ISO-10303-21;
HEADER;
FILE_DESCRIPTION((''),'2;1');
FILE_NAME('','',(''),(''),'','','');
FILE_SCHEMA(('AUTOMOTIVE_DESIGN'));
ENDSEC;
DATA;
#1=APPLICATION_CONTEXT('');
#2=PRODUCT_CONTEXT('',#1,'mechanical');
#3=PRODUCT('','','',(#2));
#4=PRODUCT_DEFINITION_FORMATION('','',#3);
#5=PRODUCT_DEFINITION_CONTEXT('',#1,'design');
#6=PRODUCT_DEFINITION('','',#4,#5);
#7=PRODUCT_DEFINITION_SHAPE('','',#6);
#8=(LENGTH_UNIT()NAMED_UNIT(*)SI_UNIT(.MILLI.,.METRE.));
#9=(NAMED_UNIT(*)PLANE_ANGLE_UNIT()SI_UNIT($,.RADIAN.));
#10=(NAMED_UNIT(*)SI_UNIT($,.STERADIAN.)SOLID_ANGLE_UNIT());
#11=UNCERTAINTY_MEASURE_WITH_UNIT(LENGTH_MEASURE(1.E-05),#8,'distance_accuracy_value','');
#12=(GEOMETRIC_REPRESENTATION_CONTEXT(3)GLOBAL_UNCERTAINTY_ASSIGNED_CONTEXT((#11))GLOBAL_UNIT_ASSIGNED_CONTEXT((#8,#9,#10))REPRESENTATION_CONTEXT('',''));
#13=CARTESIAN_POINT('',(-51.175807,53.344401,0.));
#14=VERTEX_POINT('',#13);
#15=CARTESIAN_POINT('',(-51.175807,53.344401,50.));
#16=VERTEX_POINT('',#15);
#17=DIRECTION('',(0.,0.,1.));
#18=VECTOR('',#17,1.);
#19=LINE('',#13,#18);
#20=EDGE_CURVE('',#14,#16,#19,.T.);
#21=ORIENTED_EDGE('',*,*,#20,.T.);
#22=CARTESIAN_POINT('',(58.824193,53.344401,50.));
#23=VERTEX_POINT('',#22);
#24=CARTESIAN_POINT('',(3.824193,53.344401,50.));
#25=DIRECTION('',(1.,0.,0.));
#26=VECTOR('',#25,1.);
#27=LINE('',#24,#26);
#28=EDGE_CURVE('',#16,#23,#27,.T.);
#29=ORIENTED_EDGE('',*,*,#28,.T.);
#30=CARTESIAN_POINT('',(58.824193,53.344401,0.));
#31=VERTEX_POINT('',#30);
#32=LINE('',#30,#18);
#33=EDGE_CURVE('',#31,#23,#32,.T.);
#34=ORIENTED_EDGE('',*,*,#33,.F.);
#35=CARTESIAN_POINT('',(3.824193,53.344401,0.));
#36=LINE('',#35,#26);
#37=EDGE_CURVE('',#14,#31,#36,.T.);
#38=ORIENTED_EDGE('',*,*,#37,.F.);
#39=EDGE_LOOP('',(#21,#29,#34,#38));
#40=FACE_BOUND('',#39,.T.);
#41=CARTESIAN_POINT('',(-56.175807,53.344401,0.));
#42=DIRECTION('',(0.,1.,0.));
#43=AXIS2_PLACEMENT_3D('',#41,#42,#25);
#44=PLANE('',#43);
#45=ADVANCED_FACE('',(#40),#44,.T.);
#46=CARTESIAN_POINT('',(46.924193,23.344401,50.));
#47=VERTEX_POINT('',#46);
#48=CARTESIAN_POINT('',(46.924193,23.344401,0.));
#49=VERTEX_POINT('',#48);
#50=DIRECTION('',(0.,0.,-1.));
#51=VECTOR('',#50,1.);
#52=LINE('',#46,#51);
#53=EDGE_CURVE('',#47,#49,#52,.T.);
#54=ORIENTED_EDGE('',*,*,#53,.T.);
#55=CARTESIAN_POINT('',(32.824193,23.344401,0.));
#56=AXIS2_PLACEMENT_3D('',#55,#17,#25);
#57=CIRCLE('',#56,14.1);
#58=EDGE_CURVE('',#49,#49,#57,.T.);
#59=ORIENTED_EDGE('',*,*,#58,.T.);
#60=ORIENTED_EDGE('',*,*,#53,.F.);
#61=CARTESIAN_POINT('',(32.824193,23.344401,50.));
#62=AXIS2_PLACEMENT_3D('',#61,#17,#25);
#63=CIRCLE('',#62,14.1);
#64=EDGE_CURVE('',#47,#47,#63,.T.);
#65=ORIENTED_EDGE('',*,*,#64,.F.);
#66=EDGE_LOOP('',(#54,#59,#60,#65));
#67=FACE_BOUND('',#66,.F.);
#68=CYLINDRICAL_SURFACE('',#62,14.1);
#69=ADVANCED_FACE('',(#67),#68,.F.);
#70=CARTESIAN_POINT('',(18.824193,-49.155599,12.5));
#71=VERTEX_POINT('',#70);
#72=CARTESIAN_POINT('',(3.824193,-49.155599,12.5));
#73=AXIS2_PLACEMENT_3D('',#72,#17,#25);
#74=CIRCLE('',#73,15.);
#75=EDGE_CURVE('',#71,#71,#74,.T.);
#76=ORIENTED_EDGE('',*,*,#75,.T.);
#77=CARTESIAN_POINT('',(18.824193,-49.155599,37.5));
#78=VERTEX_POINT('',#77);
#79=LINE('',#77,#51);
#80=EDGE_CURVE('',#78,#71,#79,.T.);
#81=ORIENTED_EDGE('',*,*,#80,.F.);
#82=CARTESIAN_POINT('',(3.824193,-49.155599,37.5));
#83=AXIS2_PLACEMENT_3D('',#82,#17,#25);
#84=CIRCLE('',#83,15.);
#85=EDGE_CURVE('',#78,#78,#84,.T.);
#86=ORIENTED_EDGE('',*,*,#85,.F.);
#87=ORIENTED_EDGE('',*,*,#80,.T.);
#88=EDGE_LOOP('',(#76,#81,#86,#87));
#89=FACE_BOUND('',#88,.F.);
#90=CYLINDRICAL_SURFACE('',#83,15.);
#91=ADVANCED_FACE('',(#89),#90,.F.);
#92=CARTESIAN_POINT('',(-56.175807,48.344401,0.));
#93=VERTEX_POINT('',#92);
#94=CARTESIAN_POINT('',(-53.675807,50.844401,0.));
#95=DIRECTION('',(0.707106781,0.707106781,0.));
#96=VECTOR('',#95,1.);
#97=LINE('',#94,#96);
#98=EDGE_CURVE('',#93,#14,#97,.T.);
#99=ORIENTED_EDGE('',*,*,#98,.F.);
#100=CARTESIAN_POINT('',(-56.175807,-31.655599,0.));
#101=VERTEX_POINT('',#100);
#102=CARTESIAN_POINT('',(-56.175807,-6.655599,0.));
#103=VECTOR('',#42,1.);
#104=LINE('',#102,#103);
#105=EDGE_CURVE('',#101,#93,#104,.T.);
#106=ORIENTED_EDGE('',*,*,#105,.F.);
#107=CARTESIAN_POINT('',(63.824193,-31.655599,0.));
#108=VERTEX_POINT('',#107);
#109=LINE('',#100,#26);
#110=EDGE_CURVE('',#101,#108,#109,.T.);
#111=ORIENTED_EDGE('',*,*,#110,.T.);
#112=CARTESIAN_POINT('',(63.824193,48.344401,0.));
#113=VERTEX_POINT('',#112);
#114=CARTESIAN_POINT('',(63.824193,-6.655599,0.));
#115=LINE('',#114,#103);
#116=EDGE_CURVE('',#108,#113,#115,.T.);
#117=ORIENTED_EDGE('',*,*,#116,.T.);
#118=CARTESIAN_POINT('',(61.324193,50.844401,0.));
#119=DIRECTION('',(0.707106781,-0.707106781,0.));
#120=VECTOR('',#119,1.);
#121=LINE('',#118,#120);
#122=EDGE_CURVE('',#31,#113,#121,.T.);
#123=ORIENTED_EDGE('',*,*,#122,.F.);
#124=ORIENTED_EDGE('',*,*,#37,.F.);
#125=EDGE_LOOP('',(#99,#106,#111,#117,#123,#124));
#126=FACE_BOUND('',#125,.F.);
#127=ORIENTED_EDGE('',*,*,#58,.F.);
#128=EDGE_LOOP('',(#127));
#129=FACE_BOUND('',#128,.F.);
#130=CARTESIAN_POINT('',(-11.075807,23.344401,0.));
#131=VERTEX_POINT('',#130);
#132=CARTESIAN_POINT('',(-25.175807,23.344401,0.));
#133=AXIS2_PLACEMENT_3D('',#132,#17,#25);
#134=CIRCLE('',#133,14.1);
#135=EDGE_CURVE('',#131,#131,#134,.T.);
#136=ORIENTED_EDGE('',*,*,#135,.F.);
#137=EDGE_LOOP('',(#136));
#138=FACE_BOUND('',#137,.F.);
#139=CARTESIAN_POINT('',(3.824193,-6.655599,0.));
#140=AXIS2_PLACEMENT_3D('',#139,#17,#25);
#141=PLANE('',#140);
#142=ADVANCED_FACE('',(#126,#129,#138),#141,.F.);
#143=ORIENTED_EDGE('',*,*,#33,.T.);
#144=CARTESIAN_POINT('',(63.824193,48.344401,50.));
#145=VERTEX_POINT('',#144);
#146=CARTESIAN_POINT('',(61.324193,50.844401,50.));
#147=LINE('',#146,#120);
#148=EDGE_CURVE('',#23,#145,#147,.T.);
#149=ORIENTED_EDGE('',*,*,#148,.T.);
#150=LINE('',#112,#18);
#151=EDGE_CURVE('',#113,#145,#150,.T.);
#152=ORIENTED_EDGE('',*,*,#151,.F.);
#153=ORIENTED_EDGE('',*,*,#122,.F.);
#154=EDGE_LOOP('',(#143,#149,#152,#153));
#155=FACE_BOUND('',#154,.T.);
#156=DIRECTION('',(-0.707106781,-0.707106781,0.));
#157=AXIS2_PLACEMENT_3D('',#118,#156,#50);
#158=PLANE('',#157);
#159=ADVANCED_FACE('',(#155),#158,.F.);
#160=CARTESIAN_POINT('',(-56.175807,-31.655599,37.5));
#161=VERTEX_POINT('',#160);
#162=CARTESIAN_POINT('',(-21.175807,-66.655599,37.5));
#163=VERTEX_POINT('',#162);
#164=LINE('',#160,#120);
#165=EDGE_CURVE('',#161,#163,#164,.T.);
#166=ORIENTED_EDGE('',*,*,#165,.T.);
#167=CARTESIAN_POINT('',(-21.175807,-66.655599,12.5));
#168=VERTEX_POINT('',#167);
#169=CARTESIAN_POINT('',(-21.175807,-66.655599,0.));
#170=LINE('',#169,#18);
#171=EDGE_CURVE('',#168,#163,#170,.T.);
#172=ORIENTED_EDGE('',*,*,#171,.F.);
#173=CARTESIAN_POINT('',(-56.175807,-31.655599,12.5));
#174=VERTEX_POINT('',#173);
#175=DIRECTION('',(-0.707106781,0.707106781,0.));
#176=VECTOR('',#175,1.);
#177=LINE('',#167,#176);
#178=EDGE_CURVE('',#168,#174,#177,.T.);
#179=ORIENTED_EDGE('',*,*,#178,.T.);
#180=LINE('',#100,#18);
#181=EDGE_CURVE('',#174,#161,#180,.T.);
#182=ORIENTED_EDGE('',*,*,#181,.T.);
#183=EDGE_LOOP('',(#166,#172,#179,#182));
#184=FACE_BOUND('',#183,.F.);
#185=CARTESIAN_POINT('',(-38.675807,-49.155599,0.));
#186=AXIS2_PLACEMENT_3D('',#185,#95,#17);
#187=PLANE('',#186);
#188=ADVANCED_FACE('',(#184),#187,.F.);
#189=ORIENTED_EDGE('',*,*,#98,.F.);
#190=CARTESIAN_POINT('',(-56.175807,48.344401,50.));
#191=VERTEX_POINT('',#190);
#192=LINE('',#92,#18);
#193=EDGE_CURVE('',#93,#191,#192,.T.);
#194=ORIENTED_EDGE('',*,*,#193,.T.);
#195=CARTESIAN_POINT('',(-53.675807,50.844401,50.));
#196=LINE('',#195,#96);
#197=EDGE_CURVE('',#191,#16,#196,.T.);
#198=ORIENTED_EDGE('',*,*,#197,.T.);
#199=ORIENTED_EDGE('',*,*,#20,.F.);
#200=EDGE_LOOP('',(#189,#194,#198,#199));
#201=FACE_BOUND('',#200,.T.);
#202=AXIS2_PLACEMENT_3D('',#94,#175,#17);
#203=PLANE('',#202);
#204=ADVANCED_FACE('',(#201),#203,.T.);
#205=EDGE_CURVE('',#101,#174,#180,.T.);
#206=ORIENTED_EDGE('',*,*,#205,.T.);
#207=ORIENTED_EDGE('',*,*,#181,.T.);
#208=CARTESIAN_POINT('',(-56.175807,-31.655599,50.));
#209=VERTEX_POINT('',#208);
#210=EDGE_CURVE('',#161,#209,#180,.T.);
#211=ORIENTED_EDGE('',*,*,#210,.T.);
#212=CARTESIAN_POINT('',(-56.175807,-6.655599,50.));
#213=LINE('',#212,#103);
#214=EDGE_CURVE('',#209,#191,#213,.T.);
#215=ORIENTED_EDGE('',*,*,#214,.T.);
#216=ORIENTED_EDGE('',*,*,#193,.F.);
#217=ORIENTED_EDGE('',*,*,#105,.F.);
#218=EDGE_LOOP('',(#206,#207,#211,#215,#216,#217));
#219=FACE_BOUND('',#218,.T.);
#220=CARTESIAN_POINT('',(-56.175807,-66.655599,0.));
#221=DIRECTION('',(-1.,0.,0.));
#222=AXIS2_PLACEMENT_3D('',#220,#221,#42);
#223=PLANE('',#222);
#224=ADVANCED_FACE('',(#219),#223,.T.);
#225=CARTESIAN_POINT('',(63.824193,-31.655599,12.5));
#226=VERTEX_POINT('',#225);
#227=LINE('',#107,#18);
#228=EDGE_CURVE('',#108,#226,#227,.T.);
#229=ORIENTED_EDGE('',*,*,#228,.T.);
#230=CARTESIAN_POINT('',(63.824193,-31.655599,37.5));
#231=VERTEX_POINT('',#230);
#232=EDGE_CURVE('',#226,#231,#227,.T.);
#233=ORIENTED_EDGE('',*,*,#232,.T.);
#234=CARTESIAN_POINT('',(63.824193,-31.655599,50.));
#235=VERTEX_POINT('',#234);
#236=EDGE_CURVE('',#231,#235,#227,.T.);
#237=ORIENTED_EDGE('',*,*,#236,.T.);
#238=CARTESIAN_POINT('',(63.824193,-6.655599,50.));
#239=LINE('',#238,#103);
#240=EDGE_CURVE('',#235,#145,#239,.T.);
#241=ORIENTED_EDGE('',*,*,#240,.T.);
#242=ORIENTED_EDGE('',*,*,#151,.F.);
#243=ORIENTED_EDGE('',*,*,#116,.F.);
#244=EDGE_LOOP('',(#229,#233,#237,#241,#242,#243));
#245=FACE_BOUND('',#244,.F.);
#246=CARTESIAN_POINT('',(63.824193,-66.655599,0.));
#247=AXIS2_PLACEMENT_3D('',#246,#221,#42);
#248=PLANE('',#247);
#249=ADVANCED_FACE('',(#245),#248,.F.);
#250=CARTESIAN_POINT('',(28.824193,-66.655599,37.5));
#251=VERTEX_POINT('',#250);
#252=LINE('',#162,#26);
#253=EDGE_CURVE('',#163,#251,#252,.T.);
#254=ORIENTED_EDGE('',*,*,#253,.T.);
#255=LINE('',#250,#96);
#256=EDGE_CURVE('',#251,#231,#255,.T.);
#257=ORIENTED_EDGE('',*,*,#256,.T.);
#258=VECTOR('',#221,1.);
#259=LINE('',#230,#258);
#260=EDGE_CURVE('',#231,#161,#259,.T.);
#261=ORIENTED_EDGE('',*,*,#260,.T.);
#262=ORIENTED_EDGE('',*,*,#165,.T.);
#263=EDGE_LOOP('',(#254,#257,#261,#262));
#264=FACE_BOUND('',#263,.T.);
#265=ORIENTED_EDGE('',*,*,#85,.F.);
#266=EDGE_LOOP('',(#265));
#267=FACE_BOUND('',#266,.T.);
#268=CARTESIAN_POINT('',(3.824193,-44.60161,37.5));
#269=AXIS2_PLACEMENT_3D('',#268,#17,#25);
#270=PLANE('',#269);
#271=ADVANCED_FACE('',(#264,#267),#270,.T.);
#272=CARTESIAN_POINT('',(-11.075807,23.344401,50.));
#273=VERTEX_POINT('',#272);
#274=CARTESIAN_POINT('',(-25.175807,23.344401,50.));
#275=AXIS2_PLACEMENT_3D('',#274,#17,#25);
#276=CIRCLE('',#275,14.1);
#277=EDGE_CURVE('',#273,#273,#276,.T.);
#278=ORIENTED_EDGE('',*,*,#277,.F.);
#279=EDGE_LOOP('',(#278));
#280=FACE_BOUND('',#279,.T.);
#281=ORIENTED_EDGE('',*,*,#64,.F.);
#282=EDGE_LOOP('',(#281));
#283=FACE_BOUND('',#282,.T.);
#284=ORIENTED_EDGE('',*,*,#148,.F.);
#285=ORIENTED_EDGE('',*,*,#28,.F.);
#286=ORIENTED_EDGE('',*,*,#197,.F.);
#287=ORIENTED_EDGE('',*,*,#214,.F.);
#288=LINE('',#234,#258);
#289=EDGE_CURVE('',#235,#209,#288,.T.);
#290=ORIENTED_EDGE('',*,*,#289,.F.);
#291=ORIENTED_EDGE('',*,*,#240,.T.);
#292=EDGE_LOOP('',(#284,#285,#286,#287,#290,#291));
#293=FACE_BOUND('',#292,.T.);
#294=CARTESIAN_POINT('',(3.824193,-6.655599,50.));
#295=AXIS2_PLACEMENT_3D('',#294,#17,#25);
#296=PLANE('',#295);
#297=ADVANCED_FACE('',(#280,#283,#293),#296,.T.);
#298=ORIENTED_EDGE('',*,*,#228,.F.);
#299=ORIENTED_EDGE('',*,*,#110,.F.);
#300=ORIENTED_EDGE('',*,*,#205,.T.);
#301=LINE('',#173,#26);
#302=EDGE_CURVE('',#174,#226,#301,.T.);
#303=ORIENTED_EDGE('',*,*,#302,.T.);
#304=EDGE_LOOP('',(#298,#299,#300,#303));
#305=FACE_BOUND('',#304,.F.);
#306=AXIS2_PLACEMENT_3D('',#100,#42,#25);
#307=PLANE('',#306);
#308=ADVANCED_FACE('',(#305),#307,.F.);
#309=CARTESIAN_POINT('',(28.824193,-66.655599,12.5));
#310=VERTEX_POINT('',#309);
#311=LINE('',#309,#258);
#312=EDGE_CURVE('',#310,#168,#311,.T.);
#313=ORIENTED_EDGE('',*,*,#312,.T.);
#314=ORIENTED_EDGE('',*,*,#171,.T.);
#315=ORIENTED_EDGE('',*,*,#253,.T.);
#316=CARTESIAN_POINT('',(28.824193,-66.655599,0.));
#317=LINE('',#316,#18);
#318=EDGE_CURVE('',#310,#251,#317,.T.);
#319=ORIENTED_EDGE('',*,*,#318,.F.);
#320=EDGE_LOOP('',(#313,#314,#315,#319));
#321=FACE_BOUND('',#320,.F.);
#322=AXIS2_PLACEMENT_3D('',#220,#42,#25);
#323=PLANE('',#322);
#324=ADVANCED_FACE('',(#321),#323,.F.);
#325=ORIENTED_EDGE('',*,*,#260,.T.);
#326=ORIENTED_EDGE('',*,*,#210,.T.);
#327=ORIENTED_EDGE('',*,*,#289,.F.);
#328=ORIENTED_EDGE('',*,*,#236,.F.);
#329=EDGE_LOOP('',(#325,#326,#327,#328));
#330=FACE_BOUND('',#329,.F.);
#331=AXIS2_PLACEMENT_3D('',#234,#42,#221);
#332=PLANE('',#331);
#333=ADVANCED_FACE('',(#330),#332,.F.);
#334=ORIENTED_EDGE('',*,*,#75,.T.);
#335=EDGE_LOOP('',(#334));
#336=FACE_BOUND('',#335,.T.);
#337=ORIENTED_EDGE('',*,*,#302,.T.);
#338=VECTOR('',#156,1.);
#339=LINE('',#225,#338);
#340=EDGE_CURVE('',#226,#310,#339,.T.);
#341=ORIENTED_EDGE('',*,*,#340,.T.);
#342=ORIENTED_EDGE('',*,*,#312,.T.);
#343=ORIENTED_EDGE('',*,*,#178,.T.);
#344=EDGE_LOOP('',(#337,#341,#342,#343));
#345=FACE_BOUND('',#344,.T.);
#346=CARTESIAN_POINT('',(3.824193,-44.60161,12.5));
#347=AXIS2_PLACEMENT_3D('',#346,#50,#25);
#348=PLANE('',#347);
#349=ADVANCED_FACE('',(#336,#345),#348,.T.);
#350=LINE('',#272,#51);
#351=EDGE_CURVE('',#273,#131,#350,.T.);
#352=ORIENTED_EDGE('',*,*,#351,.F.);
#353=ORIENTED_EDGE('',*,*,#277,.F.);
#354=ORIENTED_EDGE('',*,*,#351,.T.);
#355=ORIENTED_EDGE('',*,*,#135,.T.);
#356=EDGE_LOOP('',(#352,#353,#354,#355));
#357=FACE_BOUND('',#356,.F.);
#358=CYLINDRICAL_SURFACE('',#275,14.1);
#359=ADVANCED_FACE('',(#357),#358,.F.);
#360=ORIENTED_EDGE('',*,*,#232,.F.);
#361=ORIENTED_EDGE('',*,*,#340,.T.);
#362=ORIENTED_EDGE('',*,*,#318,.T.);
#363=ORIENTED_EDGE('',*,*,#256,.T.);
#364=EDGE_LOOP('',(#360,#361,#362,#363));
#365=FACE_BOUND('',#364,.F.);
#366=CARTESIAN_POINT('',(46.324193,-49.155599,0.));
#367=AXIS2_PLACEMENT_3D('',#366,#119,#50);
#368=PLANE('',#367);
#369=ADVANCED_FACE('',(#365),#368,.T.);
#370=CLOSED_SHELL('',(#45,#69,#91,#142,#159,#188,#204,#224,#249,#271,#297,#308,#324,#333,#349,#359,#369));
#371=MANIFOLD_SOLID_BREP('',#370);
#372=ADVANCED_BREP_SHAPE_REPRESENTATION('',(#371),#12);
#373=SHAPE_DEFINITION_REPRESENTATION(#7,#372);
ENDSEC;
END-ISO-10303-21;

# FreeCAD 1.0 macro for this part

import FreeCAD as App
import Part
import Sketcher
from FreeCAD import Vector
Q = App.Units.Quantity


def edges_at(feature, points):
    """Names of the edges that pass closest to the given points."""
    edges = feature.Shape.Edges
    near = lambda p: min(range(len(edges)), key=lambda i: edges[i].distToShape(Part.Vertex(*p))[0])
    return sorted({f"Edge{near(p) + 1}" for p in points})


def add_polygon(sketch, points):
    """Adds a closed chain of lines whose ends are joined by coincident constraints."""
    first, n = sketch.GeometryCount, len(points)
    for a, b in zip(points, points[1:] + points[:1]):
        sketch.addGeometry(Part.LineSegment(App.Vector(*a, 0), App.Vector(*b, 0)), False)
    for i in range(n):
        sketch.addConstraint(Sketcher.Constraint("Coincident", first + i, 2, first + (i + 1) % n, 1))

doc = App.newDocument("Part")
body = doc.addObject("PartDesign::Body", "Body")

# Sketch on XY plane
sketch1 = doc.addObject("Sketcher::SketchObject", "Sketch")
body.addObject(sketch1)
sketch1.AttachmentSupport = (doc.XY_Plane, [""])
sketch1.MapMode = "FlatFace"
add_polygon(sketch1, [(-56, 53), (-56, -67), (64, -67), (64, 53)])  # lines 0-3
sketch1.addConstraint([
    Sketcher.Constraint("Vertical", 0),
    Sketcher.Constraint("Horizontal", 1),
    Sketcher.Constraint("Vertical", 2),
    Sketcher.Constraint("Horizontal", 3),
    Sketcher.Constraint("Equal", 3, 0),
    Sketcher.Constraint("DistanceX", 1, 1, 1, 2, Q("120 mm")),
    Sketcher.Constraint("DistanceY", 0, 2, -1, 1, Q("66.655599 mm")),
    Sketcher.Constraint("DistanceX", 0, 2, -1, 1, Q("56.175807 mm")),
])
pad1 = doc.addObject("PartDesign::Pad", "Pad")
body.addObject(pad1)
pad1.Profile = sketch1
pad1.Length = 50
doc.recompute()

chamfer = doc.addObject("PartDesign::Chamfer", "Chamfer")
body.addObject(chamfer)
chamfer.Base = (pad1, edges_at(pad1, [(-56.176, -66.656, 25), (63.824, -66.656, 25)]))
chamfer.Size = 35

# Sketch on XY plane
sketch2 = doc.addObject("Sketcher::SketchObject", "Sketch001")
body.addObject(sketch2)
sketch2.AttachmentSupport = (doc.XY_Plane, [""])
sketch2.MapMode = "FlatFace"
sketch2.AttachmentOffset = App.Placement(Vector(0, 0, 50), App.Rotation())
add_polygon(sketch2, [(64, -32), (-56, -32), (-21, -67), (29, -67)])  # lines 0-3
sketch2.addConstraint([
    Sketcher.Constraint("Horizontal", 0),
    Sketcher.Constraint("Horizontal", 2),
    Sketcher.Constraint("Perpendicular", 1, 3),
    Sketcher.Constraint("Equal", 1, 3),
    Sketcher.Constraint("DistanceX", 0, 2, 0, 1, Q("120 mm")),
    Sketcher.Constraint("DistanceX", 2, 1, 2, 2, Q("50 mm")),
    Sketcher.Constraint("DistanceY", 0, 2, -1, 1, Q("31.655599 mm")),
    Sketcher.Constraint("DistanceX", 0, 2, -1, 1, Q("56.175807 mm")),
])
pocket1 = doc.addObject("PartDesign::Pocket", "Pocket")
body.addObject(pocket1)
pocket1.Profile = sketch2
pocket1.Length = 12.5

# Sketch on XY plane
sketch3 = doc.addObject("Sketcher::SketchObject", "Sketch002")
body.addObject(sketch3)
sketch3.AttachmentSupport = (doc.XY_Plane, [""])
sketch3.MapMode = "FlatFace"
add_polygon(sketch3, [(-56, -32), (64, -32), (29, -67), (-21, -67)])  # lines 0-3
sketch3.addConstraint([
    Sketcher.Constraint("Horizontal", 0),
    Sketcher.Constraint("Horizontal", 2),
    Sketcher.Constraint("Perpendicular", 1, 3),
    Sketcher.Constraint("Equal", 1, 3),
    Sketcher.Constraint("DistanceX", 0, 1, 0, 2, Q("120 mm")),
    Sketcher.Constraint("DistanceX", 2, 2, 2, 1, Q("50 mm")),
    Sketcher.Constraint("DistanceY", 0, 2, -1, 1, Q("31.655599 mm")),
    Sketcher.Constraint("DistanceX", -1, 1, 0, 2, Q("63.824193 mm")),
])
pocket2 = doc.addObject("PartDesign::Pocket", "Pocket001")
body.addObject(pocket2)
pocket2.Profile = sketch3
pocket2.Length = 12.5
pocket2.Reversed = True

# Sketch on XY plane
sketch4 = doc.addObject("Sketcher::SketchObject", "Sketch003")
body.addObject(sketch4)
sketch4.AttachmentSupport = (doc.XY_Plane, [""])
sketch4.MapMode = "FlatFace"
sketch4.AttachmentOffset = App.Placement(Vector(0, 0, 37.5), App.Rotation())
sketch4.addGeometry(Part.Circle(Vector(4, -49, 0), Vector(0, 0, 1), 15), False)
sketch4.addConstraint([
    Sketcher.Constraint("Diameter", 0, Q("30 mm")),
    Sketcher.Constraint("DistanceY", 0, 3, -1, 1, Q("49.155599 mm")),
    Sketcher.Constraint("DistanceX", -1, 1, 0, 3, Q("3.824193 mm")),
])
pocket3 = doc.addObject("PartDesign::Pocket", "Pocket002")
body.addObject(pocket3)
pocket3.Profile = sketch4
pocket3.Type = "ThroughAll"

# Sketch on XY plane
sketch5 = doc.addObject("Sketcher::SketchObject", "Sketch004")
body.addObject(sketch5)
sketch5.AttachmentSupport = (doc.XY_Plane, [""])
sketch5.MapMode = "FlatFace"
sketch5.AttachmentOffset = App.Placement(Vector(0, 0, 50), App.Rotation())
sketch5.addGeometry([
    Part.Circle(Vector(-25, 23, 0), Vector(0, 0, 1), 14),
    Part.Circle(Vector(33, 23, 0), Vector(0, 0, 1), 14),
], False)
sketch5.addConstraint([
    Sketcher.Constraint("Equal", 0, 1),
    Sketcher.Constraint("Horizontal", 0, 3, 1, 3),
    Sketcher.Constraint("Diameter", 0, Q("28.2 mm")),
    Sketcher.Constraint("DistanceX", 0, 3, 1, 3, Q("58 mm")),
    Sketcher.Constraint("DistanceY", -1, 1, 0, 3, Q("23.344401 mm")),
    Sketcher.Constraint("DistanceX", 0, 3, -1, 1, Q("25.175807 mm")),
])
pocket4 = doc.addObject("PartDesign::Pocket", "Pocket003")
body.addObject(pocket4)
pocket4.Profile = sketch5
pocket4.Type = "ThroughAll"
doc.recompute()

chamfer2 = doc.addObject("PartDesign::Chamfer", "Chamfer001")
body.addObject(chamfer2)
chamfer2.Base = (pocket4, edges_at(pocket4, [(63.824, 53.344, 25), (-56.176, 53.344, 25)]))
chamfer2.Size = 5

doc.recompute()
